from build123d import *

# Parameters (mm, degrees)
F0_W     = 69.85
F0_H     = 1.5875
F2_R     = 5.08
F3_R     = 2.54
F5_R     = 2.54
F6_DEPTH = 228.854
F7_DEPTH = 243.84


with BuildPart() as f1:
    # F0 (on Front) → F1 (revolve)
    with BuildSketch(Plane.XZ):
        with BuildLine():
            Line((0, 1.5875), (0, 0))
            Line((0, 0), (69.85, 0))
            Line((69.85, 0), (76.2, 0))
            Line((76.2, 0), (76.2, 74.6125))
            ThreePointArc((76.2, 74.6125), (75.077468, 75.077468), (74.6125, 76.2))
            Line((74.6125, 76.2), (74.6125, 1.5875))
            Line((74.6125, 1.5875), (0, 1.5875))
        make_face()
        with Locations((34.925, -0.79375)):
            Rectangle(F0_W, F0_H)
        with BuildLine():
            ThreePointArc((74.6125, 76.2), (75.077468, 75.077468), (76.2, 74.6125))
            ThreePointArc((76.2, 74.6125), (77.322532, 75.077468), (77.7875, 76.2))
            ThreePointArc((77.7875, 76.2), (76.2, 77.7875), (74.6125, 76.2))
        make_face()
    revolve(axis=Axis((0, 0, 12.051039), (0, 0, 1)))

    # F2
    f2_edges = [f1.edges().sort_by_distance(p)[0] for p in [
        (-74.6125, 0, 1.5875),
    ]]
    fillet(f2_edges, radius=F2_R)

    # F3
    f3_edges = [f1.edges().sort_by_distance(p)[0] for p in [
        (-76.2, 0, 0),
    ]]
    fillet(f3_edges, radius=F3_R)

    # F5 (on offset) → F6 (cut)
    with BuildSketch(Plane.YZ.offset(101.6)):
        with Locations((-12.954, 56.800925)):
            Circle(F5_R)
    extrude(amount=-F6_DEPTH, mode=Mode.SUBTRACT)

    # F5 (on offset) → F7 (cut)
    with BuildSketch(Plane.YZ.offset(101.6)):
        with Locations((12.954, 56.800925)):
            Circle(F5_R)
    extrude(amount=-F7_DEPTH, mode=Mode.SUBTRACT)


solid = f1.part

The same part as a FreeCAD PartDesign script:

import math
import FreeCAD as App
import Part
import Sketcher
Q = App.Units.Quantity


def edges_at(feature, points):
    """Names of the edges that pass closest to the given points."""
    edges = feature.Shape.Edges
    near = lambda p: min(range(len(edges)), key=lambda i: edges[i].distToShape(Part.Vertex(*p))[0])
    return sorted({f"Edge{near(p) + 1}" for p in points})

doc = App.newDocument("Part")
params = doc.addObject("Spreadsheet::Sheet", "Params")
for row, (alias, value) in enumerate([
    ("sketch1_radius", "0.0625 in"),
    ("sketch1_width", "2.75 in"),
    ("revolution_angle", "360 deg"),
    ("fillet_radius", "0.2 in"),
    ("fillet2_radius", "0.1 in"),
    ("sketch2_diameter", "0.2 in"),
    ("pocket1_length", "9.01 in"),
    ("sketch3_diameter", "0.2 in"),
    ("pocket2_length", "9.6 in"),
], start=1):
    params.set(f"A{row}", alias)
    params.set(f"B{row}", "=" + value)
    params.setAlias(f"B{row}", alias)

body = doc.addObject("PartDesign::Body", "Body")

sketch1 = body.newObject("Sketcher::SketchObject", "Sketch")
sketch1.AttachmentSupport = (doc.getObject("XZ_Plane"), [""])
sketch1.MapMode = "FlatFace"
sketch1.addGeometry(Part.LineSegment(App.Vector(0, 1.6, 0), App.Vector(0, -1.6, 0)), False)
sketch1.addGeometry(Part.LineSegment(App.Vector(0, -1.6, 0), App.Vector(69.8, -1.6, 0)), False)
sketch1.addGeometry(Part.LineSegment(App.Vector(69.8, -1.6, 0), App.Vector(69.8, 0, 0)), False)
sketch1.addGeometry(Part.LineSegment(App.Vector(69.8, 0, 0), App.Vector(76.2, 0, 0)), False)
sketch1.addGeometry(Part.LineSegment(App.Vector(76.2, 0, 0), App.Vector(76.2, 74.6, 0)), False)
sketch1.addGeometry(Part.ArcOfCircle(Part.Circle(App.Vector(76.2, 76.2, 0), App.Vector(0, 0, 1), 1.6), math.radians(-90), math.radians(0)), False)
sketch1.addGeometry(Part.ArcOfCircle(Part.Circle(App.Vector(76.2, 76.2, 0), App.Vector(0, 0, 1), 1.6), math.radians(0), math.radians(180)), False)
sketch1.addGeometry(Part.LineSegment(App.Vector(74.6, 76.2, 0), App.Vector(74.6, 1.6, 0)), False)
sketch1.addGeometry(Part.LineSegment(App.Vector(74.6, 1.6, 0), App.Vector(0, 1.6, 0)), False)
sketch1.addConstraint(Sketcher.Constraint("Coincident", 0, 2, 1, 1))
sketch1.addConstraint(Sketcher.Constraint("Coincident", 1, 2, 2, 1))
sketch1.addConstraint(Sketcher.Constraint("Coincident", 2, 2, 3, 1))
sketch1.addConstraint(Sketcher.Constraint("Coincident", 3, 2, 4, 1))
sketch1.addConstraint(Sketcher.Constraint("Coincident", 4, 2, 5, 1))
sketch1.addConstraint(Sketcher.Constraint("Tangent", 5, 2, 6, 1))
sketch1.addConstraint(Sketcher.Constraint("Tangent", 6, 2, 7, 1))
sketch1.addConstraint(Sketcher.Constraint("Coincident", 7, 2, 8, 1))
sketch1.addConstraint(Sketcher.Constraint("Coincident", 8, 2, 0, 1))
sketch1.addConstraint(Sketcher.Constraint("Vertical", 0))
sketch1.addConstraint(Sketcher.Constraint("Horizontal", 1))
sketch1.addConstraint(Sketcher.Constraint("Vertical", 2))
sketch1.addConstraint(Sketcher.Constraint("Horizontal", 3))
sketch1.addConstraint(Sketcher.Constraint("Vertical", 4))
sketch1.addConstraint(Sketcher.Constraint("Vertical", 7))
sketch1.addConstraint(Sketcher.Constraint("Horizontal", 8))
sketch1.addConstraint(Sketcher.Constraint("Equal", 5, 6))
sketch1.addConstraint(Sketcher.Constraint("Symmetric", 0, 2, 8, 2, -1, 1))
sketch1.addConstraint(Sketcher.Constraint("PointOnObject", 2, 2, -1))
sketch1.addConstraint(Sketcher.Constraint("Horizontal", 6, 3, 5, 2))
sketch1.addConstraint(Sketcher.Constraint("Vertical", 6, 3, 3, 2))
sketch1.addConstraint(Sketcher.Constraint("Equal", 8, 4))
sketch1.addConstraint(Sketcher.Constraint("Equal", 4, 7))
sketch1.addConstraint(Sketcher.Constraint("DistanceX", -1, 1, 5, 3, Q("3 in")))
sketch1.addConstraint(Sketcher.Constraint("Radius", 5, Q("0.0625 in")))
sketch1.addConstraint(Sketcher.Constraint("DistanceX", 1, 1, 1, 2, Q("2.75 in")))
sketch1.setExpression("Constraints[24]", "Params.sketch1_radius")
sketch1.setExpression("Constraints[25]", "Params.sketch1_width")
revolution = body.newObject("PartDesign::Revolution", "Revolution")
revolution.Profile = sketch1
revolution.ReferenceAxis = (sketch1, ["V_Axis"])
revolution.setExpression("Angle", "Params.revolution_angle")
doc.recompute()

fillet = body.newObject("PartDesign::Fillet", "Fillet")
fillet.Base = (revolution, edges_at(revolution, [(-74.612, 0, 1.587)]))
fillet.setExpression("Radius", "Params.fillet_radius")
doc.recompute()

fillet2 = body.newObject("PartDesign::Fillet", "Fillet001")
fillet2.Base = (fillet, edges_at(fillet, [(-76.2, 0, 0)]))
fillet2.setExpression("Radius", "Params.fillet2_radius")

sketch2 = body.newObject("Sketcher::SketchObject", "Sketch001")
sketch2.AttachmentSupport = (doc.getObject("YZ_Plane"), [""])
sketch2.MapMode = "FlatFace"
sketch2.AttachmentOffset = App.Placement(App.Vector(0, 0, 4 * 25.4), App.Rotation())
sketch2.addGeometry(Part.Circle(App.Vector(-13, 56.8, 0), App.Vector(0, 0, 1), 2.5), False)
sketch2.addConstraint(Sketcher.Constraint("Diameter", 0, Q("0.2 in")))
sketch2.addConstraint(Sketcher.Constraint("DistanceX", 0, 3, -1, 1, Q("0.51 in")))
sketch2.addConstraint(Sketcher.Constraint("DistanceY", -1, 1, 0, 3, 56.800925))
sketch2.setExpression("Constraints[0]", "Params.sketch2_diameter")
pocket1 = body.newObject("PartDesign::Pocket", "Pocket")
pocket1.Profile = sketch2
pocket1.setExpression("Length", "Params.pocket1_length")

sketch3 = body.newObject("Sketcher::SketchObject", "Sketch002")
sketch3.AttachmentSupport = (doc.getObject("YZ_Plane"), [""])
sketch3.MapMode = "FlatFace"
sketch3.AttachmentOffset = App.Placement(App.Vector(0, 0, 4 * 25.4), App.Rotation())
sketch3.addGeometry(Part.Circle(App.Vector(13, 56.8, 0), App.Vector(0, 0, 1), 2.5), False)
sketch3.addConstraint(Sketcher.Constraint("Diameter", 0, Q("0.2 in")))
sketch3.addConstraint(Sketcher.Constraint("DistanceX", -1, 1, 0, 3, Q("0.51 in")))
sketch3.addConstraint(Sketcher.Constraint("DistanceY", -1, 1, 0, 3, 56.800925))
sketch3.setExpression("Constraints[0]", "Params.sketch3_diameter")
pocket2 = body.newObject("PartDesign::Pocket", "Pocket001")
pocket2.Profile = sketch3
pocket2.setExpression("Length", "Params.pocket2_length")

doc.recompute()
